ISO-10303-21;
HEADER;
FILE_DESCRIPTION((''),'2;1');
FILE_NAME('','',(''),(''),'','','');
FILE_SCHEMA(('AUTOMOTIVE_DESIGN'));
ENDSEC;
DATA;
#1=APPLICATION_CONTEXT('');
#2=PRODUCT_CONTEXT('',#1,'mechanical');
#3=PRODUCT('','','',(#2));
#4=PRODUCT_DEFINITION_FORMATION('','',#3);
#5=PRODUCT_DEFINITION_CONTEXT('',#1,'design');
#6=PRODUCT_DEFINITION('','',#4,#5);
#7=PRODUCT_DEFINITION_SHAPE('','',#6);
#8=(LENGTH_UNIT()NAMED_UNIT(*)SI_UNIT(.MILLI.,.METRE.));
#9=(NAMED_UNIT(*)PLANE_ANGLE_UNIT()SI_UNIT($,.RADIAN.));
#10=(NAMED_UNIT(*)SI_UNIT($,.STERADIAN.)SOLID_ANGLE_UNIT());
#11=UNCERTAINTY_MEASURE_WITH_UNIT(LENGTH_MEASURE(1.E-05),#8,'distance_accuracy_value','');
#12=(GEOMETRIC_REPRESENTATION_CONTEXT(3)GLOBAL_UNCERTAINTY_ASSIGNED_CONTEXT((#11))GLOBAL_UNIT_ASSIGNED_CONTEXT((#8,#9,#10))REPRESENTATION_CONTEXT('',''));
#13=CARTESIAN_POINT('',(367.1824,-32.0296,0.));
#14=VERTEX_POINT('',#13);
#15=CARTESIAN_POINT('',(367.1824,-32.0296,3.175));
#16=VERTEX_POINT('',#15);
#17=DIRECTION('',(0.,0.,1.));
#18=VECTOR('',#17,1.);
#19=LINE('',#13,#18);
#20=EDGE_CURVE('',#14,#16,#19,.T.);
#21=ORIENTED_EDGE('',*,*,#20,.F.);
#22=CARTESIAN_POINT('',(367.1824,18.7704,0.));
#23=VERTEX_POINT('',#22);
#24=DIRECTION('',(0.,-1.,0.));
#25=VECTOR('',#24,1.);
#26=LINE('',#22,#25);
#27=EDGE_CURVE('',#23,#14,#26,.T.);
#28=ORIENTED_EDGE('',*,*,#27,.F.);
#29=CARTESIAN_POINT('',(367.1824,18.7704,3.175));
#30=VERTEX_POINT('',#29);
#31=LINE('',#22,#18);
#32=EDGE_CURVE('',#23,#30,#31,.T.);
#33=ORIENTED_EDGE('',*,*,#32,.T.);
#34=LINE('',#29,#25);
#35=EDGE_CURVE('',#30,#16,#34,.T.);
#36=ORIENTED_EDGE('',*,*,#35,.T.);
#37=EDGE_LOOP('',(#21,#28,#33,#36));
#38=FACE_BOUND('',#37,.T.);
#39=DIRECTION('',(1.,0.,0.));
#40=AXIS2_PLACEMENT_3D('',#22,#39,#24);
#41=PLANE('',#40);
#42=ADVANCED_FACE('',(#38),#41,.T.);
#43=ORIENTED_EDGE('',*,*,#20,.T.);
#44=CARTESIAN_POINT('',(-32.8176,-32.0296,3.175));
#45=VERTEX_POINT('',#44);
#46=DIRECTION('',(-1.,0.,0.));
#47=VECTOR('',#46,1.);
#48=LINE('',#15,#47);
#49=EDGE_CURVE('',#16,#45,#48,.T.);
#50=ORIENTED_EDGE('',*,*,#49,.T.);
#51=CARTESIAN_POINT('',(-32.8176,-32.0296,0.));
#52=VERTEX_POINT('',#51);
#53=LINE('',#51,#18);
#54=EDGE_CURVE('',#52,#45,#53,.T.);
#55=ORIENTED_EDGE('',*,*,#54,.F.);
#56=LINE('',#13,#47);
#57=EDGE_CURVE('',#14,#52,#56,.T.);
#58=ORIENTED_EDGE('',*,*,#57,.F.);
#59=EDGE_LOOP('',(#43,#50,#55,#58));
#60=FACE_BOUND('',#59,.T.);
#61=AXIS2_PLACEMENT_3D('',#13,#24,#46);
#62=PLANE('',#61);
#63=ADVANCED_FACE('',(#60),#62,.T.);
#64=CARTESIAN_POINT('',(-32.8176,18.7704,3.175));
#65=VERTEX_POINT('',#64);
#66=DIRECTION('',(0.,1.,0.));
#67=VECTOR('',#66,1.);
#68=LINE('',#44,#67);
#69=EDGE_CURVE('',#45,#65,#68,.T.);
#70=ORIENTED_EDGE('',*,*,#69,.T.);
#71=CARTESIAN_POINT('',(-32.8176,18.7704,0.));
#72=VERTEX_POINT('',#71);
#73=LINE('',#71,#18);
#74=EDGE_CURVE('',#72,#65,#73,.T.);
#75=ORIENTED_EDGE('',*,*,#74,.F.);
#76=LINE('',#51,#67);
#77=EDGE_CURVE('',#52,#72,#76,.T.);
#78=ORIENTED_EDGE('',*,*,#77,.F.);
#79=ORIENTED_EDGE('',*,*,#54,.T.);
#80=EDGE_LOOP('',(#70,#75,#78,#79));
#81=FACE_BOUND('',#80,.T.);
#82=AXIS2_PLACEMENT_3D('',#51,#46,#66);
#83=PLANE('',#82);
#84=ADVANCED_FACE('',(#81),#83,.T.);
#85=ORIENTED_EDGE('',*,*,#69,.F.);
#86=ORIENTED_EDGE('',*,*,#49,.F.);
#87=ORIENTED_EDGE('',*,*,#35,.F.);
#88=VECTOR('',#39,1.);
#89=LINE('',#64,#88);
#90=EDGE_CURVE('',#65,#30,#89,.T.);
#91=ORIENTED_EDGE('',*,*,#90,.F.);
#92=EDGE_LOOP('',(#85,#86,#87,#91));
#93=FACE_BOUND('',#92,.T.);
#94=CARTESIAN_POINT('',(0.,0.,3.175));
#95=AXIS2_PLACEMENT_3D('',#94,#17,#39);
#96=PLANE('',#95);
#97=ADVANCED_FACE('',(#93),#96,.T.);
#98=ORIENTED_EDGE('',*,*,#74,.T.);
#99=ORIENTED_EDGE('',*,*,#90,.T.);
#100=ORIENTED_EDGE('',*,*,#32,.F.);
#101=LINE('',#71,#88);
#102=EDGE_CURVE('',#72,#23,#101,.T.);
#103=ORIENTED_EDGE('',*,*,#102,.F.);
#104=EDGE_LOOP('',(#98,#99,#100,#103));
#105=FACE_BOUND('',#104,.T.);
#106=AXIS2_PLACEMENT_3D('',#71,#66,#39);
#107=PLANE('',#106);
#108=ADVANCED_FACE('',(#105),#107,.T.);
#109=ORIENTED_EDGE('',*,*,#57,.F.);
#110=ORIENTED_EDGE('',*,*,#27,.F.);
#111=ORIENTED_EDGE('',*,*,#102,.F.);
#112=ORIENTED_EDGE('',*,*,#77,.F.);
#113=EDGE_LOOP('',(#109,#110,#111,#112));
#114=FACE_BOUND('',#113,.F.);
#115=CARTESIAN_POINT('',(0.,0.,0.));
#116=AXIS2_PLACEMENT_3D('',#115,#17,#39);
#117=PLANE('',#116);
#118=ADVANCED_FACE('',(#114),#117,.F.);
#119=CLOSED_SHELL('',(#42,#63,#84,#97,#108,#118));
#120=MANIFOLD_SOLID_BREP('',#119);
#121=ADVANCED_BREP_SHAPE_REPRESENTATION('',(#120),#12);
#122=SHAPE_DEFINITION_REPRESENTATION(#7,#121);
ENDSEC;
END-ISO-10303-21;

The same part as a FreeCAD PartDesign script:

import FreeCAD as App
import Part
import Sketcher
from FreeCAD import Vector
Q = App.Units.Quantity


def add_polygon(sketch, points):
    """Adds a closed chain of lines whose ends are joined by coincident constraints."""
    first, n = sketch.GeometryCount, len(points)
    for a, b in zip(points, points[1:] + points[:1]):
        sketch.addGeometry(Part.LineSegment(App.Vector(*a, 0), App.Vector(*b, 0)), False)
    for i in range(n):
        sketch.addConstraint(Sketcher.Constraint("Coincident", first + i, 2, first + (i + 1) % n, 1))

doc = App.newDocument("Part")
body = doc.addObject("PartDesign::Body", "Body")

# Sketch on XY plane
sketch1 = body.newObject("Sketcher::SketchObject", "Sketch")
sketch1.AttachmentSupport = (doc.getObject("XY_Plane"), [""])
sketch1.MapMode = "FlatFace"
add_polygon(sketch1, [(367, 19), (-33, 19), (-33, -32), (367, -32)])  # lines 0-3
sketch1.addConstraint(Sketcher.Constraint("Horizontal", 0))
sketch1.addConstraint(Sketcher.Constraint("Vertical", 1))
sketch1.addConstraint(Sketcher.Constraint("Horizontal", 2))
sketch1.addConstraint(Sketcher.Constraint("Vertical", 3))
sketch1.addConstraint(Sketcher.Constraint("DistanceY", 1, 2, 1, 1, Q("2 in")))
sketch1.addConstraint(Sketcher.Constraint("DistanceX", 0, 2, 0, 1, 400.0))
sketch1.addConstraint(Sketcher.Constraint("DistanceY", -1, 1, 0, 2, Q("0.739 in")))
sketch1.addConstraint(Sketcher.Constraint("DistanceX", -1, 1, 2, 2, Q("14.456 in")))
pad1 = body.newObject("PartDesign::Pad", "Pad")
pad1.Profile = sketch1
pad1.Length = Q("0.125 in")

doc.recompute()
